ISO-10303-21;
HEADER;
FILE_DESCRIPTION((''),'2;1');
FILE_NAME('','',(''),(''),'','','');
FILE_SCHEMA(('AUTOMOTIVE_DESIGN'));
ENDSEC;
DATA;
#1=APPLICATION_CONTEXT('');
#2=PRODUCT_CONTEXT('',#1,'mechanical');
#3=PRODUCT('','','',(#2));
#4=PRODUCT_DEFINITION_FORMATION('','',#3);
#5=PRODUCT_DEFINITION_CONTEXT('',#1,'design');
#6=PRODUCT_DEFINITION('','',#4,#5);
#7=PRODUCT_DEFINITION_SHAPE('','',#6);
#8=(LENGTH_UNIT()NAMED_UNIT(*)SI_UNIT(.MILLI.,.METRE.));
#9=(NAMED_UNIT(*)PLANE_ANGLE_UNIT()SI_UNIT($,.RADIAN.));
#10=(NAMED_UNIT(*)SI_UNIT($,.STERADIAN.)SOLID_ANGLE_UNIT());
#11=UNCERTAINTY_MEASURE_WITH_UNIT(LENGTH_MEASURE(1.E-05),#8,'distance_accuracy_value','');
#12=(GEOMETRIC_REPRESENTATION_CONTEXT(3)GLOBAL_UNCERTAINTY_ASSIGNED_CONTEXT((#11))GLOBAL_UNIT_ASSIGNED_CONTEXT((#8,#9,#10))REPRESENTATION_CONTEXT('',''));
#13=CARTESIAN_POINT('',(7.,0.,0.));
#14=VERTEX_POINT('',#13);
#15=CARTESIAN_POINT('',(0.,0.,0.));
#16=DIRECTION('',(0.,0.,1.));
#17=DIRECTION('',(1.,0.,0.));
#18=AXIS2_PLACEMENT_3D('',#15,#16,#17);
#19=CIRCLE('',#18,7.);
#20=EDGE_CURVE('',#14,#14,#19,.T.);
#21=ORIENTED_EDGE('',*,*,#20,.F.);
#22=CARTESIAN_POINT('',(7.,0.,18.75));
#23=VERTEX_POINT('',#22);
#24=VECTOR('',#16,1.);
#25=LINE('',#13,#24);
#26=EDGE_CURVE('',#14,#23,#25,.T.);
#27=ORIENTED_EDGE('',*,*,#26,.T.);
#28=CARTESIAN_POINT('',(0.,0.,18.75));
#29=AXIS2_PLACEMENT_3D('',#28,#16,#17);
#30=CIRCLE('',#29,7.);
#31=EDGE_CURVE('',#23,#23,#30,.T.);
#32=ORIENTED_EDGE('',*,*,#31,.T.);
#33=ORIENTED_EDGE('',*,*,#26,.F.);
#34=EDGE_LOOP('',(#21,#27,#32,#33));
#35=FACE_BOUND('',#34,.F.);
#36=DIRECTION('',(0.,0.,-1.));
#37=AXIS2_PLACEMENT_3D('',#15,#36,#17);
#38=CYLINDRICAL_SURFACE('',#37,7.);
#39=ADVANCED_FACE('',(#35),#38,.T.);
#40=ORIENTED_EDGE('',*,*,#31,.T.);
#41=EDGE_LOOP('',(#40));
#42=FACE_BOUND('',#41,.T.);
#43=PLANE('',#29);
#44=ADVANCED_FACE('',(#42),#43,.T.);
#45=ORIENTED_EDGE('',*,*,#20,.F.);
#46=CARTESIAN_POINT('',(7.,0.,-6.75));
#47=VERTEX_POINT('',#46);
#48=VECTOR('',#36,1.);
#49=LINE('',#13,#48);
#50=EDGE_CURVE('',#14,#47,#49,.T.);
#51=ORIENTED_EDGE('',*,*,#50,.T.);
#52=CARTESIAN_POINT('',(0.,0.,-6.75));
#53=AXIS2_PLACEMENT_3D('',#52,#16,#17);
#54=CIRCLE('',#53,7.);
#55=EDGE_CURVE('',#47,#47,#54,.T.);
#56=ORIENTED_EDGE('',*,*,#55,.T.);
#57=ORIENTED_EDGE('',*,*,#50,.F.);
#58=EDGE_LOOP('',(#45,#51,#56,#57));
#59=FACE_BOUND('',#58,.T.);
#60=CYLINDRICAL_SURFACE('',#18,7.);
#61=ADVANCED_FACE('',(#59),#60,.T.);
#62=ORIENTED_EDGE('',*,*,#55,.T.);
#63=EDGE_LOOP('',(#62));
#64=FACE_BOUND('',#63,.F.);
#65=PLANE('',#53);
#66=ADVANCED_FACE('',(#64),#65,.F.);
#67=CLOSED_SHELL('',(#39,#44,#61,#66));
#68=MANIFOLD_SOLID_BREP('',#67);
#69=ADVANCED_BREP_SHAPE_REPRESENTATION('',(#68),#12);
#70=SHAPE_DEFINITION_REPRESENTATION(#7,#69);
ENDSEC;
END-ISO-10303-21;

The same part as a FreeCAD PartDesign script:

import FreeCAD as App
import Part
import Sketcher

doc = App.newDocument("Part")
params = doc.addObject("Spreadsheet::Sheet", "Params")
for row, (alias, value) in enumerate([
    ("sketch1_diameter", "14 mm"),
    ("pad1_length", "18.75 mm"),
    ("pad1_length2", "6.75 mm"),
], start=1):
    params.set(f"A{row}", alias)
    params.set(f"B{row}", "=" + value)
    params.setAlias(f"B{row}", alias)

body = doc.addObject("PartDesign::Body", "Body")

sketch1 = doc.addObject("Sketcher::SketchObject", "Sketch")
body.addObject(sketch1)
sketch1.AttachmentSupport = (doc.XY_Plane, [""])
sketch1.MapMode = "FlatFace"
sketch1.addGeometry(Part.Circle(App.Vector(0, 0, 0), App.Vector(0, 0, 1), 7), False)
sketch1.addConstraint([
    Sketcher.Constraint("Coincident", 0, 3, -1, 1),
    Sketcher.Constraint("Diameter", 0, 14.0),
])
sketch1.setExpression("Constraints[1]", "Params.sketch1_diameter")
pad1 = doc.addObject("PartDesign::Pad", "Pad")
body.addObject(pad1)
pad1.Profile = sketch1
pad1.Type = "TwoLengths"
pad1.setExpression("Length", "Params.pad1_length")
pad1.setExpression("Length2", "Params.pad1_length2")

doc.recompute()
